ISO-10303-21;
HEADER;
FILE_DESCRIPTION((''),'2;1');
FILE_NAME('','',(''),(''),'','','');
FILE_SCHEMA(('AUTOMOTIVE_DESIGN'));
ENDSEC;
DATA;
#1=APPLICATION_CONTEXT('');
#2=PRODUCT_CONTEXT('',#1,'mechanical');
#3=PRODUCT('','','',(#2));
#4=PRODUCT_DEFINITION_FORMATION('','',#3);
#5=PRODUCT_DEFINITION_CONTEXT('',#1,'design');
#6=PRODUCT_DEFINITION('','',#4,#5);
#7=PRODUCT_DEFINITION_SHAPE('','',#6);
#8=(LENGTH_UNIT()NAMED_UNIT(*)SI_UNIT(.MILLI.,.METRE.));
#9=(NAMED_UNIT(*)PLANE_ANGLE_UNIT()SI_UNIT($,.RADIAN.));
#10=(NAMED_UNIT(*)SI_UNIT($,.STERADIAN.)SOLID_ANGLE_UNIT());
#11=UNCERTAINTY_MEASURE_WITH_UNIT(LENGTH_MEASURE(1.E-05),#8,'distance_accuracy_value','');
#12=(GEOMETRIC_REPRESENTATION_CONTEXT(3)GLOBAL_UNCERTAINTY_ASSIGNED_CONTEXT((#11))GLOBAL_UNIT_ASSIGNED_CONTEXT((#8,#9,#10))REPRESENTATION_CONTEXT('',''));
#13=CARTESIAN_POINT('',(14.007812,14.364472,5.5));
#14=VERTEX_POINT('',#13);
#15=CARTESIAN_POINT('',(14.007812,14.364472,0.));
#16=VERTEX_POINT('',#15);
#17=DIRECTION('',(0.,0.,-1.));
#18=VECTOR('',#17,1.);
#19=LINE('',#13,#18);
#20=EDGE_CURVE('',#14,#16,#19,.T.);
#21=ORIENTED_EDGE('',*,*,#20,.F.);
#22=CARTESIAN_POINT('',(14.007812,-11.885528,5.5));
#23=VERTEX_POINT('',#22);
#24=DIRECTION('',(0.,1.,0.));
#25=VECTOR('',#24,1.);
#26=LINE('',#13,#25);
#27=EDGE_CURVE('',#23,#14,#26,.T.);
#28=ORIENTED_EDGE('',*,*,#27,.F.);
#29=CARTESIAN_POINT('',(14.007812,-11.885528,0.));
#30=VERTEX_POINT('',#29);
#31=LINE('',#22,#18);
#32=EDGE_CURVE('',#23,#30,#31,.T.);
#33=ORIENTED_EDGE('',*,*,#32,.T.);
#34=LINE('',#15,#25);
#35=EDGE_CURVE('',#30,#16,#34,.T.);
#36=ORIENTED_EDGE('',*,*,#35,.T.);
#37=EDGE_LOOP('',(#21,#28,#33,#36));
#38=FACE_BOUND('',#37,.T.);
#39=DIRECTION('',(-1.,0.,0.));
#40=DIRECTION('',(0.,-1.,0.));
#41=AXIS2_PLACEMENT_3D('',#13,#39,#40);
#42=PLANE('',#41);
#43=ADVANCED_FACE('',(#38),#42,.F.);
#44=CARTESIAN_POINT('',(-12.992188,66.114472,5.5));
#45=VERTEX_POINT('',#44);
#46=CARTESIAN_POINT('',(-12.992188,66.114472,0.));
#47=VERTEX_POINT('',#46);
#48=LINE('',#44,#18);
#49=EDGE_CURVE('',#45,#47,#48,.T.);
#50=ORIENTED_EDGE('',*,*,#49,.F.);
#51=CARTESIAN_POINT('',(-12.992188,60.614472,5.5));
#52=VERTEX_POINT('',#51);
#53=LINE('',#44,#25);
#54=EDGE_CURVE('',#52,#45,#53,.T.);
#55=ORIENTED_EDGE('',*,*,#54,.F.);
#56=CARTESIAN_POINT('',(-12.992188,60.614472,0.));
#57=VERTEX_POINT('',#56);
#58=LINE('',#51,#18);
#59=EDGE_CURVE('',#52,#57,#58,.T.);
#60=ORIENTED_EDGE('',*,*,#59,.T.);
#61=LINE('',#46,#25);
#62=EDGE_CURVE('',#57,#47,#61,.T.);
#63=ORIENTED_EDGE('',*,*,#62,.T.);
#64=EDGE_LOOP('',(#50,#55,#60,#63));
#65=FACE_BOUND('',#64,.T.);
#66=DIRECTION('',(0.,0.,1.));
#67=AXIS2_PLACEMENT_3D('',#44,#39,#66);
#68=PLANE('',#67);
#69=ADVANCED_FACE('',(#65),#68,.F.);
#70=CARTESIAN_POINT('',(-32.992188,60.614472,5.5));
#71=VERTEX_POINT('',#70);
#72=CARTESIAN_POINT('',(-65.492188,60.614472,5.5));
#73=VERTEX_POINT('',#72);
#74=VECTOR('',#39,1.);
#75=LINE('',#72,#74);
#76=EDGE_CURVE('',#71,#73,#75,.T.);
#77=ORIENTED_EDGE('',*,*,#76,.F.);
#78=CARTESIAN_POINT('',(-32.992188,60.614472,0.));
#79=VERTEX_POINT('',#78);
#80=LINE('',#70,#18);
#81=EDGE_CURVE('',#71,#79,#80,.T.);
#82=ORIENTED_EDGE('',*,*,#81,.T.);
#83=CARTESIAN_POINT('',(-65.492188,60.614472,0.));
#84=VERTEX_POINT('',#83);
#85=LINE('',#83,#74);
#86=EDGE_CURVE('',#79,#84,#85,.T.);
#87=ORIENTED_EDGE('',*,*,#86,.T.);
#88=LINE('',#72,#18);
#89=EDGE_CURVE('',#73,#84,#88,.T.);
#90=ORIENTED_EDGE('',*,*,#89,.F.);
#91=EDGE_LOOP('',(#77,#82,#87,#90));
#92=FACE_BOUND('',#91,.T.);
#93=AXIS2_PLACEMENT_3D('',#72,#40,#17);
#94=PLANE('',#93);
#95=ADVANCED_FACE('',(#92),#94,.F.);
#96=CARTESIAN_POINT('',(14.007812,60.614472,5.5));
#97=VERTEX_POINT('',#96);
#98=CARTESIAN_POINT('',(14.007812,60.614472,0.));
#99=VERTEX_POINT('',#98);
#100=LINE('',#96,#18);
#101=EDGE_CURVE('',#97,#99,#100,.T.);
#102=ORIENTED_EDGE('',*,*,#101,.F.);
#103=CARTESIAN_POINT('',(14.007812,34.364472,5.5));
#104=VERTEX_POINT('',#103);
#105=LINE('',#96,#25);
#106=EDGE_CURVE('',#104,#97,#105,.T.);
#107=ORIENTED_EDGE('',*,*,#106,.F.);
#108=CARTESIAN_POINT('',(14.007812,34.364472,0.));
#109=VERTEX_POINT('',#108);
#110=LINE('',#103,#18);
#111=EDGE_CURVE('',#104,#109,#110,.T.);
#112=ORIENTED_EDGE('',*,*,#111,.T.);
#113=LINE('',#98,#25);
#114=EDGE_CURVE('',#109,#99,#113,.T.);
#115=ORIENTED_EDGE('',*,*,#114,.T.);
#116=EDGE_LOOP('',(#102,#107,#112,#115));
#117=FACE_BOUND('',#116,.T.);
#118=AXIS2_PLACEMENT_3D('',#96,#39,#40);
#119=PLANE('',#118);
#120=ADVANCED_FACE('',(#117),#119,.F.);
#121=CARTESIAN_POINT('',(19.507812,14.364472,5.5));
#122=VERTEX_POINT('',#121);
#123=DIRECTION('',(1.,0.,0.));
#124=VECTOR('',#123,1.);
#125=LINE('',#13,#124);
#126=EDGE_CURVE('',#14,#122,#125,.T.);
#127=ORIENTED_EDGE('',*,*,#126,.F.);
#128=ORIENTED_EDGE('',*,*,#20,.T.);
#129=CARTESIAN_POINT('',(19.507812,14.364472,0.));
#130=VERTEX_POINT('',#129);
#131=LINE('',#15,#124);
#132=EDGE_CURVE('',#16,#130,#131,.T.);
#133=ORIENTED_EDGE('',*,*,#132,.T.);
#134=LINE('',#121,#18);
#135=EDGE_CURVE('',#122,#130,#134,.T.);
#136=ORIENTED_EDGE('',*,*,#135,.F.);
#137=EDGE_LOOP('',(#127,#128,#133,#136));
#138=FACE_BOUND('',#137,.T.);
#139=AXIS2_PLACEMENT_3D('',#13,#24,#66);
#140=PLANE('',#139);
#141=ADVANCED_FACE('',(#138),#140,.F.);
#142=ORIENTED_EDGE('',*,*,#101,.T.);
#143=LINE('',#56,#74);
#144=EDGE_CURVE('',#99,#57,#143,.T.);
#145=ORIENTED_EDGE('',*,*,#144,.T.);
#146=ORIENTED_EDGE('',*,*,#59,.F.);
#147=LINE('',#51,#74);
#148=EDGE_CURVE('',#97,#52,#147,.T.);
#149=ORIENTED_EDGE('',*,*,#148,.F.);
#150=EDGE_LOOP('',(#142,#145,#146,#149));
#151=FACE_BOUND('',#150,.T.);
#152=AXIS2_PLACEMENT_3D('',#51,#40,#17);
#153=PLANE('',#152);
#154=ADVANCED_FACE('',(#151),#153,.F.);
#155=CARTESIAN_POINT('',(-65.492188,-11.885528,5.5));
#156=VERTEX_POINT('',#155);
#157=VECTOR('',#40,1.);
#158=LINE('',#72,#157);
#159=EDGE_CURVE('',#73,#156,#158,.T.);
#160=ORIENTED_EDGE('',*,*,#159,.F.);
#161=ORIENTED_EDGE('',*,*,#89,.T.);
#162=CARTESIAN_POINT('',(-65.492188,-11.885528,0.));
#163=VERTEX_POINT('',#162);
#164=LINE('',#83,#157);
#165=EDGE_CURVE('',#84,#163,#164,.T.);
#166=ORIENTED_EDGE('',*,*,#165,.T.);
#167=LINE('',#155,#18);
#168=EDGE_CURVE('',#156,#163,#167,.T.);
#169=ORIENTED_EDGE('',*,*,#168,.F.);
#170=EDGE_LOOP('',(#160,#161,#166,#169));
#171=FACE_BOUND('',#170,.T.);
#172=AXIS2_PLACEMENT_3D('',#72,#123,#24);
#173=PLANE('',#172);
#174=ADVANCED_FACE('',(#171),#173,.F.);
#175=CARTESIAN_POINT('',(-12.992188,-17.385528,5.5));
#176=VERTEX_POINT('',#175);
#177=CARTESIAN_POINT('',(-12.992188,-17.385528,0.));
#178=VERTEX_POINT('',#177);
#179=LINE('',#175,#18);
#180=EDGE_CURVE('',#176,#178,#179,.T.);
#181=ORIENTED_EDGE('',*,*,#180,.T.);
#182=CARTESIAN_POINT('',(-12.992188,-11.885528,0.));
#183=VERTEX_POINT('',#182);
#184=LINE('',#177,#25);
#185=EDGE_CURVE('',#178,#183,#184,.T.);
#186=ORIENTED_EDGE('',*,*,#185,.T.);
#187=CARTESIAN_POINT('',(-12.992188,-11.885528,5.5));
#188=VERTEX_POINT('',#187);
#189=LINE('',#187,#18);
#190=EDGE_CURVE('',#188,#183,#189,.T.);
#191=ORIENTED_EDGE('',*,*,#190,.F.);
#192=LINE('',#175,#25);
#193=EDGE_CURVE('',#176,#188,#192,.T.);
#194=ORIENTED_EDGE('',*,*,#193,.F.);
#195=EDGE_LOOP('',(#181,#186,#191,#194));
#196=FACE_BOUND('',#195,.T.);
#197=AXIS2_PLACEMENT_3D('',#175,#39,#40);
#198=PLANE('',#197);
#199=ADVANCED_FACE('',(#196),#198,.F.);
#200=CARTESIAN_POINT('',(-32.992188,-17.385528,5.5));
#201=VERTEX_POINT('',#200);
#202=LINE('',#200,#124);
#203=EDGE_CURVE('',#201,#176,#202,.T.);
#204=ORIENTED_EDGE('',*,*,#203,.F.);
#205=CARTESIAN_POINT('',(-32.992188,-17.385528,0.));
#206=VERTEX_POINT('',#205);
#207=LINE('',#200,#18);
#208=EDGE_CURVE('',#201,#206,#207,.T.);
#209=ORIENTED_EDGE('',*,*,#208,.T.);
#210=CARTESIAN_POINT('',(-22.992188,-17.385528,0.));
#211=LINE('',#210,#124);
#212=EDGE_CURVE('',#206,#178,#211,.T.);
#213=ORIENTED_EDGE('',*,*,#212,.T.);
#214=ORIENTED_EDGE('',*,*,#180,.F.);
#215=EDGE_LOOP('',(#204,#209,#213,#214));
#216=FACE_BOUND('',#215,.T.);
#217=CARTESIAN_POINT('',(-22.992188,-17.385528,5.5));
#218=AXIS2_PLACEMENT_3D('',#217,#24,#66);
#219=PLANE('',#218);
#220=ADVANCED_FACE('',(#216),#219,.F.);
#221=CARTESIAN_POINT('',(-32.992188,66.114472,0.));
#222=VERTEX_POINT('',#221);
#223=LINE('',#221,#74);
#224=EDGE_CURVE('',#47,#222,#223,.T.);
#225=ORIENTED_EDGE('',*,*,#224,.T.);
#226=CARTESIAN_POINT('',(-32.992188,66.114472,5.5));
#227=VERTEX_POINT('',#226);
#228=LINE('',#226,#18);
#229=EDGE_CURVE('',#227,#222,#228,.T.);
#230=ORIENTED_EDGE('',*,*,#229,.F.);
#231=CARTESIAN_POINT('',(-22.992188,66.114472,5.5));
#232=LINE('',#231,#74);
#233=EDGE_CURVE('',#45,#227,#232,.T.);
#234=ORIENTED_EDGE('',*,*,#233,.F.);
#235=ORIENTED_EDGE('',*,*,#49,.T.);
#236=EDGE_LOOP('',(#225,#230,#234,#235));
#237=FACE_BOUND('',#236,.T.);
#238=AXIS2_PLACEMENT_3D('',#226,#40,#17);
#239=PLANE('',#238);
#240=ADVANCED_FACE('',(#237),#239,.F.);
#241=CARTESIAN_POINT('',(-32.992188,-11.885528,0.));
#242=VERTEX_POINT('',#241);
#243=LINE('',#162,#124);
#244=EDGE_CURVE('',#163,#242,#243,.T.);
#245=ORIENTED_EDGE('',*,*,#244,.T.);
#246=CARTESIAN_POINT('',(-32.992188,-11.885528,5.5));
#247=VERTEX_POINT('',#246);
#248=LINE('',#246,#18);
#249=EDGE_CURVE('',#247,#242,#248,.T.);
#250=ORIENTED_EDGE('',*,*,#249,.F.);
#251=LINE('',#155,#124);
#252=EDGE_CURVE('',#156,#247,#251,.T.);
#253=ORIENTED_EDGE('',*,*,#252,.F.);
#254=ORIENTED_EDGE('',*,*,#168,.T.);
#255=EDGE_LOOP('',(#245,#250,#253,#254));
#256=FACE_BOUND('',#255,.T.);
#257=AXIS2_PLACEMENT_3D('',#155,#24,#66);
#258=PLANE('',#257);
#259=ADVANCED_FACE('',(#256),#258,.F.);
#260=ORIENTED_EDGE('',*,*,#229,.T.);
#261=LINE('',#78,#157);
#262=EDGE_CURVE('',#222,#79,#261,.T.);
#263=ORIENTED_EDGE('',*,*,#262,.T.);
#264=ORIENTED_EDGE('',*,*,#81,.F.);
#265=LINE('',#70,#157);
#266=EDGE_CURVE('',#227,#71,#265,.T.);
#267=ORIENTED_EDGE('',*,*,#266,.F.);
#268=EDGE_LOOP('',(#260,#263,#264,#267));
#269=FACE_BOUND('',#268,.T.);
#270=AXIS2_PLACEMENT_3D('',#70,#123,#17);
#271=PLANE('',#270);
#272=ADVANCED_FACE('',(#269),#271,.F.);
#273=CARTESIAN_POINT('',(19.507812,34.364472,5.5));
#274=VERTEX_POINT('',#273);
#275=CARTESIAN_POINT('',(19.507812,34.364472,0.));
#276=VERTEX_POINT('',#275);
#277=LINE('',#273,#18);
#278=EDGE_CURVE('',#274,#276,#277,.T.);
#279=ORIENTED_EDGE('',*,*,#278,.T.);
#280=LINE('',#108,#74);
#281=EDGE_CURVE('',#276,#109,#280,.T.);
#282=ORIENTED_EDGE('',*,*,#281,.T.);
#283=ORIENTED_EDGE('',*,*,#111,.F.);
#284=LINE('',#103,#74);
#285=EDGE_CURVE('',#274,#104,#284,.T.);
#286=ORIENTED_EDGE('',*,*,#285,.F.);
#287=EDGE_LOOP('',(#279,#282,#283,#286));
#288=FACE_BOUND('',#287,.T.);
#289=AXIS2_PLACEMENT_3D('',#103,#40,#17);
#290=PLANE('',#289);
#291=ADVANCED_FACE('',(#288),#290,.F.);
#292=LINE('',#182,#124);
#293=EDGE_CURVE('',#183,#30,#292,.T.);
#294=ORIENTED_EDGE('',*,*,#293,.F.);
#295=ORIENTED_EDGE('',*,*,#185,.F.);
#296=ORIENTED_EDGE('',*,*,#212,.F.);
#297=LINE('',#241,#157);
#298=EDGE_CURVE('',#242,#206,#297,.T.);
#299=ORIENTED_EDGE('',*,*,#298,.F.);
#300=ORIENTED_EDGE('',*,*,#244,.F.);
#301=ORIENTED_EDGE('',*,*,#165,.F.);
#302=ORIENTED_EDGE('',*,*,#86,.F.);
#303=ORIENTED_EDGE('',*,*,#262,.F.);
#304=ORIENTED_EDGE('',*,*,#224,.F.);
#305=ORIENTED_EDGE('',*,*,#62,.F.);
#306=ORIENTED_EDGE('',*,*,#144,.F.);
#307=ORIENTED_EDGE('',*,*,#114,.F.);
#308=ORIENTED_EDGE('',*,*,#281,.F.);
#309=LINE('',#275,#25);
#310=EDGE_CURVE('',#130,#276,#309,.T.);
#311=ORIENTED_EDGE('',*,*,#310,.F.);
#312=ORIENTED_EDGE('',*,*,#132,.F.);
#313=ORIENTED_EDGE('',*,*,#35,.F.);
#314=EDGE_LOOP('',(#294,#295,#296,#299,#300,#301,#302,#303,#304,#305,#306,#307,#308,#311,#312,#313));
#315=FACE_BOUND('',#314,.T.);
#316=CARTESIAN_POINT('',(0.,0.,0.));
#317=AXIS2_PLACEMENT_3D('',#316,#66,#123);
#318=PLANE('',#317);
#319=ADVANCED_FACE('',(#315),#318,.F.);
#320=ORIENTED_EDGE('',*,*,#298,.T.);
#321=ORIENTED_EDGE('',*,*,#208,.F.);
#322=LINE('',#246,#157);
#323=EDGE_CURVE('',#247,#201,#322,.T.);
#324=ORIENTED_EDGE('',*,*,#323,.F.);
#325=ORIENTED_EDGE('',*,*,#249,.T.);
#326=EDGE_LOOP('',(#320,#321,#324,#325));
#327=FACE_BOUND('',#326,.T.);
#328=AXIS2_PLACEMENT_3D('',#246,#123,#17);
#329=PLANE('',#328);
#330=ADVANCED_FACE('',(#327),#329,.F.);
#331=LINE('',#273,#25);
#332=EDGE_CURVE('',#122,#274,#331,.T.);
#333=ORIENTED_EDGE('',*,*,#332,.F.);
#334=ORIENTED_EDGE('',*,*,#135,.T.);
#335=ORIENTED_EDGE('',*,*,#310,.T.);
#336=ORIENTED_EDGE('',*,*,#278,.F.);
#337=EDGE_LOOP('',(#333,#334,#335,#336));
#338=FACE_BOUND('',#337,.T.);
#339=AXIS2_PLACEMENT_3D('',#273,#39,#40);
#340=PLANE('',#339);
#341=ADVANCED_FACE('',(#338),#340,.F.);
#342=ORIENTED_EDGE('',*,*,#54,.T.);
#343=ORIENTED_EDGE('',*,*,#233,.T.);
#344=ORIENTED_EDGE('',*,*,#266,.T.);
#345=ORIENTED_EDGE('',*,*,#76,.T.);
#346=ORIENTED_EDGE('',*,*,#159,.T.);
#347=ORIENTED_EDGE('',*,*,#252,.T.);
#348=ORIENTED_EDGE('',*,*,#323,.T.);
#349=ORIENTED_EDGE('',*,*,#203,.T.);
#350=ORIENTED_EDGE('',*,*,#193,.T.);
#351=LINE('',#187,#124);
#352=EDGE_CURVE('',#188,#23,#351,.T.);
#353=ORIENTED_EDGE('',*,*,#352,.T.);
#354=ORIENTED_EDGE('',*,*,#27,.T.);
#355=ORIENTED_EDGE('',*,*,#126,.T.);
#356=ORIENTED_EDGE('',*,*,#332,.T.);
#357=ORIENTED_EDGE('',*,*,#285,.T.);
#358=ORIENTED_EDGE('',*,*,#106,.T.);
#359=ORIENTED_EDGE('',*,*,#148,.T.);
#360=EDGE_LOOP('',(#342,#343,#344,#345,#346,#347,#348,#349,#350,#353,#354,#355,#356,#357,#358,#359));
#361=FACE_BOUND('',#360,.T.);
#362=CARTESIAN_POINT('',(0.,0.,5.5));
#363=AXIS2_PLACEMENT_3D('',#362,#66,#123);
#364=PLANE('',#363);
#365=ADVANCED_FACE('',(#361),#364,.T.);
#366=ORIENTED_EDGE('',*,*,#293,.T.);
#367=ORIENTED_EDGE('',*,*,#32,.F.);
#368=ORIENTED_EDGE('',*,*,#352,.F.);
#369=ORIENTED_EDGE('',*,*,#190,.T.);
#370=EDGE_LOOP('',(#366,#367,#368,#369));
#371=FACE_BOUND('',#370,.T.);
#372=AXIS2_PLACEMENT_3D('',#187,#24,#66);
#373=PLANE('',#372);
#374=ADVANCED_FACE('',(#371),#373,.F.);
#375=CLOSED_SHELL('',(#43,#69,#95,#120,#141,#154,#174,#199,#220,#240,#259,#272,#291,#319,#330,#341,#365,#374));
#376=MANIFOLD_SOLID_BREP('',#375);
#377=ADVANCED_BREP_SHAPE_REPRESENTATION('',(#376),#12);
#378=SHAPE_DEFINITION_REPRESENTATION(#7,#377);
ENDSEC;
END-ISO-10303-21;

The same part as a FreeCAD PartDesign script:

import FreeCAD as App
import Part
import Sketcher

V = App.Vector
Q = App.Units.Quantity

doc = App.newDocument("Part")
body = doc.addObject("PartDesign::Body", "Body")

sketch1 = body.newObject("Sketcher::SketchObject", "Sketch")
sketch1.AttachmentSupport = (doc.getObject("XY_Plane"), [""])
sketch1.MapMode = "FlatFace"
sketch1.addGeometry([
    Part.LineSegment(V(-65, -12, 0), V(-33, -12, 0)),
    Part.LineSegment(V(-33, -12, 0), V(-33, -17, 0)),
    Part.LineSegment(V(-33, -17, 0), V(-13, -17, 0)),
    Part.LineSegment(V(-13, -17, 0), V(-13, -12, 0)),
    Part.LineSegment(V(-13, -12, 0), V(14, -12, 0)),
    Part.LineSegment(V(14, -12, 0), V(14, 14, 0)),
    Part.LineSegment(V(14, 14, 0), V(20, 14, 0)),
    Part.LineSegment(V(20, 14, 0), V(20, 34, 0)),
    Part.LineSegment(V(20, 34, 0), V(14, 34, 0)),
    Part.LineSegment(V(14, 34, 0), V(14, 61, 0)),
    Part.LineSegment(V(14, 61, 0), V(-13, 61, 0)),
    Part.LineSegment(V(-13, 61, 0), V(-13, 66, 0)),
    Part.LineSegment(V(-13, 66, 0), V(-33, 66, 0)),
    Part.LineSegment(V(-33, 66, 0), V(-33, 61, 0)),
    Part.LineSegment(V(-33, 61, 0), V(-65, 61, 0)),
    Part.LineSegment(V(-65, 61, 0), V(-65, -12, 0)),
], False)
sketch1.addConstraint([
    Sketcher.Constraint("Coincident", 0, 2, 1, 1),
    Sketcher.Constraint("Coincident", 1, 2, 2, 1),
    Sketcher.Constraint("Coincident", 2, 2, 3, 1),
    Sketcher.Constraint("Coincident", 3, 2, 4, 1),
    Sketcher.Constraint("Coincident", 4, 2, 5, 1),
    Sketcher.Constraint("Coincident", 5, 2, 6, 1),
    Sketcher.Constraint("Coincident", 6, 2, 7, 1),
    Sketcher.Constraint("Coincident", 7, 2, 8, 1),
    Sketcher.Constraint("Coincident", 8, 2, 9, 1),
    Sketcher.Constraint("Coincident", 9, 2, 10, 1),
    Sketcher.Constraint("Coincident", 10, 2, 11, 1),
    Sketcher.Constraint("Coincident", 11, 2, 12, 1),
    Sketcher.Constraint("Coincident", 12, 2, 13, 1),
    Sketcher.Constraint("Coincident", 13, 2, 14, 1),
    Sketcher.Constraint("Coincident", 14, 2, 15, 1),
    Sketcher.Constraint("Coincident", 15, 2, 0, 1),
    Sketcher.Constraint("Horizontal", 0),
    Sketcher.Constraint("Vertical", 1),
    Sketcher.Constraint("Horizontal", 2),
    Sketcher.Constraint("Vertical", 3),
    Sketcher.Constraint("Horizontal", 4),
    Sketcher.Constraint("Vertical", 5),
    Sketcher.Constraint("Horizontal", 6),
    Sketcher.Constraint("Vertical", 7),
    Sketcher.Constraint("Horizontal", 8),
    Sketcher.Constraint("Vertical", 9),
    Sketcher.Constraint("Horizontal", 10),
    Sketcher.Constraint("Vertical", 11),
    Sketcher.Constraint("Horizontal", 12),
    Sketcher.Constraint("Vertical", 13),
    Sketcher.Constraint("Horizontal", 14),
    Sketcher.Constraint("Vertical", 15),
    Sketcher.Constraint("Horizontal", 0, 2, 3, 2),
    Sketcher.Constraint("Horizontal", 10, 2, 13, 2),
    Sketcher.Constraint("Vertical", 5, 2, 8, 2),
    Sketcher.Constraint("Vertical", 3, 2, 10, 2),
    Sketcher.Constraint("Vertical", 1, 2, 12, 2),
    Sketcher.Constraint("Equal", 8, 1),
    Sketcher.Constraint("Equal", 12, 7),
    Sketcher.Constraint("Equal", 5, 9),
    Sketcher.Constraint("Equal", 3, 11),
    Sketcher.Constraint("DistanceX", 2, 1, 2, 2, Q("20 mm")),
    Sketcher.Constraint("DistanceX", 4, 1, 4, 2, Q("27 mm")),
    Sketcher.Constraint("DistanceX", 0, 1, 0, 2, Q("32.5 mm")),
    Sketcher.Constraint("DistanceX", 6, 1, 6, 2, Q("5.5 mm")),
    Sketcher.Constraint("DistanceY", 15, 2, 15, 1, Q("72.5 mm")),
    Sketcher.Constraint("DistanceX", 0, 2, -1, 1, Q("32.992188 mm")),
    Sketcher.Constraint("DistanceY", 0, 2, -1, 1, Q("11.885528 mm")),
])
pad1 = body.newObject("PartDesign::Pad", "Pad")
pad1.Profile = sketch1
pad1.Length = 5.5

doc.recompute()
